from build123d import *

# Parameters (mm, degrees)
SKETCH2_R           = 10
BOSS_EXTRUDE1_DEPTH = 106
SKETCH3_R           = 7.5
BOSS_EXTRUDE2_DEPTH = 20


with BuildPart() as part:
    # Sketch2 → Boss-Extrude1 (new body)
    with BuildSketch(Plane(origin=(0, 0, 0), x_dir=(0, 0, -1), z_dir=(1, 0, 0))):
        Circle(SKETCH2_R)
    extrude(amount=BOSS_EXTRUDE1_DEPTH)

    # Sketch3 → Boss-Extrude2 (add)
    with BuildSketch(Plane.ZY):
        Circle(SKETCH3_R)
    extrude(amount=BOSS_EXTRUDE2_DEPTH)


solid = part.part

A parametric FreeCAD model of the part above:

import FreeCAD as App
import Part
import Sketcher

V = App.Vector
Q = App.Units.Quantity

doc = App.newDocument("Part")
body = doc.addObject("PartDesign::Body", "Body")

# Sketch on YZ plane
sketch1 = body.newObject("Sketcher::SketchObject", "Sketch")
sketch1.AttachmentSupport = (doc.getObject("YZ_Plane"), [""])
sketch1.MapMode = "FlatFace"
sketch1.addGeometry(Part.Circle(V(0, 0, 0), V(0, 0, 1), 10), False)
sketch1.addConstraint([
    Sketcher.Constraint("Coincident", 0, 3, -1, 1),
    Sketcher.Constraint("Diameter", 0, Q("20 mm")),
])
pad1 = body.newObject("PartDesign::Pad", "Pad")
pad1.Profile = sketch1
pad1.Length = 106

# Sketch on YZ plane
sketch2 = body.newObject("Sketcher::SketchObject", "Sketch001")
sketch2.AttachmentSupport = (doc.getObject("YZ_Plane"), [""])
sketch2.MapMode = "FlatFace"
sketch2.addGeometry(Part.Circle(V(0, 0, 0), V(0, 0, 1), 8), False)
sketch2.addConstraint([
    Sketcher.Constraint("Coincident", 0, 3, -1, 1),
    Sketcher.Constraint("Diameter", 0, Q("15 mm")),
])
pad2 = body.newObject("PartDesign::Pad", "Pad001")
pad2.Profile = sketch2
pad2.Length = 20
pad2.Reversed = True

doc.recompute()
